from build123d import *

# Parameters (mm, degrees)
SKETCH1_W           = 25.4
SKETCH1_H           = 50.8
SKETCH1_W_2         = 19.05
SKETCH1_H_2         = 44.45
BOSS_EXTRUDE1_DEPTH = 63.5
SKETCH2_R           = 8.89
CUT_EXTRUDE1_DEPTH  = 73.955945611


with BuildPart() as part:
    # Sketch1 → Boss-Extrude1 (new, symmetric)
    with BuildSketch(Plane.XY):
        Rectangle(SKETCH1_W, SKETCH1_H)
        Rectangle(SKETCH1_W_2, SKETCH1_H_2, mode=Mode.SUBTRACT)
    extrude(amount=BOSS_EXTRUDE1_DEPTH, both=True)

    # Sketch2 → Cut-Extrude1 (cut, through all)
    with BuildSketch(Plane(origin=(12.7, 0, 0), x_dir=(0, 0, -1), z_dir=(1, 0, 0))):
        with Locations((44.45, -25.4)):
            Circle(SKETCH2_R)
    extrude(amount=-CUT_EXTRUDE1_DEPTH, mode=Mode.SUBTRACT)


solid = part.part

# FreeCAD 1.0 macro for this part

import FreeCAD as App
import Part
import Sketcher
from FreeCAD import Vector
Q = App.Units.Quantity

doc = App.newDocument("Part")
params = doc.addObject("Spreadsheet::Sheet", "Params")
for row, (alias, value) in enumerate([
    ("sketch1_width", "1 in"),
    ("sketch1_height", "2 in"),
    ("sketch1_width2", "0.75 in"),
    ("sketch1_height2", "1.75 in"),
    ("pad1_length", "5 in"),
    ("sketch2_diameter", "0.7 in"),
], start=1):
    params.set(f"A{row}", alias)
    params.set(f"B{row}", "=" + value)
    params.setAlias(f"B{row}", alias)

body = doc.addObject("PartDesign::Body", "Body")

# Sketch on XY plane
sketch1 = doc.addObject("Sketcher::SketchObject", "Sketch")
body.addObject(sketch1)
sketch1.AttachmentSupport = (doc.XY_Plane, [""])
sketch1.MapMode = "FlatFace"
sketch1.addGeometry(Part.LineSegment(Vector(-13, 25, 0), Vector(-13, -25, 0)), False)
sketch1.addGeometry(Part.LineSegment(Vector(-13, -25, 0), Vector(13, -25, 0)), False)
sketch1.addGeometry(Part.LineSegment(Vector(13, -25, 0), Vector(13, 25, 0)), False)
sketch1.addGeometry(Part.LineSegment(Vector(13, 25, 0), Vector(-13, 25, 0)), False)
sketch1.addGeometry(Part.LineSegment(Vector(10, -22, 0), Vector(-10, -22, 0)), False)
sketch1.addGeometry(Part.LineSegment(Vector(-10, -22, 0), Vector(-10, 22, 0)), False)
sketch1.addGeometry(Part.LineSegment(Vector(-10, 22, 0), Vector(10, 22, 0)), False)
sketch1.addGeometry(Part.LineSegment(Vector(10, 22, 0), Vector(10, -22, 0)), False)
sketch1.addConstraint(Sketcher.Constraint("Coincident", 0, 2, 1, 1))
sketch1.addConstraint(Sketcher.Constraint("Coincident", 1, 2, 2, 1))
sketch1.addConstraint(Sketcher.Constraint("Coincident", 2, 2, 3, 1))
sketch1.addConstraint(Sketcher.Constraint("Coincident", 3, 2, 0, 1))
sketch1.addConstraint(Sketcher.Constraint("Coincident", 4, 2, 5, 1))
sketch1.addConstraint(Sketcher.Constraint("Coincident", 5, 2, 6, 1))
sketch1.addConstraint(Sketcher.Constraint("Coincident", 6, 2, 7, 1))
sketch1.addConstraint(Sketcher.Constraint("Coincident", 7, 2, 4, 1))
sketch1.addConstraint(Sketcher.Constraint("Vertical", 0))
sketch1.addConstraint(Sketcher.Constraint("Horizontal", 1))
sketch1.addConstraint(Sketcher.Constraint("Vertical", 2))
sketch1.addConstraint(Sketcher.Constraint("Horizontal", 3))
sketch1.addConstraint(Sketcher.Constraint("Horizontal", 4))
sketch1.addConstraint(Sketcher.Constraint("Vertical", 5))
sketch1.addConstraint(Sketcher.Constraint("Horizontal", 6))
sketch1.addConstraint(Sketcher.Constraint("Vertical", 7))
sketch1.addConstraint(Sketcher.Constraint("Symmetric", 0, 2, 2, 2, -1, 1))
sketch1.addConstraint(Sketcher.Constraint("Symmetric", 4, 2, 6, 2, -1, 1))
sketch1.addConstraint(Sketcher.Constraint("DistanceX", 1, 1, 1, 2, Q("1 in")))
sketch1.addConstraint(Sketcher.Constraint("DistanceY", 0, 2, 0, 1, Q("2 in")))
sketch1.addConstraint(Sketcher.Constraint("DistanceX", 4, 2, 4, 1, Q("0.75 in")))
sketch1.addConstraint(Sketcher.Constraint("DistanceY", 5, 1, 5, 2, Q("1.75 in")))
sketch1.setExpression("Constraints[18]", "Params.sketch1_width")
sketch1.setExpression("Constraints[19]", "Params.sketch1_height")
sketch1.setExpression("Constraints[20]", "Params.sketch1_width2")
sketch1.setExpression("Constraints[21]", "Params.sketch1_height2")
pad1 = doc.addObject("PartDesign::Pad", "Pad")
body.addObject(pad1)
pad1.Profile = sketch1
pad1.setExpression("Length", "Params.pad1_length")
pad1.Midplane = True

# Sketch on YZ plane
sketch2 = doc.addObject("Sketcher::SketchObject", "Sketch001")
body.addObject(sketch2)
sketch2.AttachmentSupport = (doc.YZ_Plane, [""])
sketch2.MapMode = "FlatFace"
sketch2.AttachmentOffset = App.Placement(Vector(0, 0, 0.5 * 25.4), App.Rotation())
sketch2.addGeometry(Part.Circle(Vector(-25, -44, 0), Vector(0, 0, 1), 9), False)
sketch2.addConstraint(Sketcher.Constraint("Diameter", 0, Q("0.7 in")))
sketch2.addConstraint(Sketcher.Constraint("DistanceX", 0, 3, -1, 1, Q("1 in")))
sketch2.addConstraint(Sketcher.Constraint("DistanceY", 0, 3, -1, 1, Q("1.75 in")))
sketch2.setExpression("Constraints[0]", "Params.sketch2_diameter")
pocket1 = doc.addObject("PartDesign::Pocket", "Pocket")
body.addObject(pocket1)
pocket1.Profile = sketch2
pocket1.Type = "ThroughAll"

doc.recompute()
